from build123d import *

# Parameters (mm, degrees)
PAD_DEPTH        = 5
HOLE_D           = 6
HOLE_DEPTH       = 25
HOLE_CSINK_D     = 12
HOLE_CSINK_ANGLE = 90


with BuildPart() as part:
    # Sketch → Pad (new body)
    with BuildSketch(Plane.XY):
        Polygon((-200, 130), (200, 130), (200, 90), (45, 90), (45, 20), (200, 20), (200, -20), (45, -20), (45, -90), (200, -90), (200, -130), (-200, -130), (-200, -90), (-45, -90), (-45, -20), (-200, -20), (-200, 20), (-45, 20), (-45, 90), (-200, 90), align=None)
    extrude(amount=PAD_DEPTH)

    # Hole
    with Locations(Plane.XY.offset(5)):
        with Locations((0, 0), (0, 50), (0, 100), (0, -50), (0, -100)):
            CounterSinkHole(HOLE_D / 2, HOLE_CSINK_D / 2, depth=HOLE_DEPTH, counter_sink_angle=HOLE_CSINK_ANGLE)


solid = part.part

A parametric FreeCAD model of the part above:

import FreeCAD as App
import Part
import Sketcher

V = App.Vector
Q = App.Units.Quantity


def add_polygon(sketch, points):
    """Adds a closed chain of lines whose ends are joined by coincident constraints."""
    first, n = sketch.GeometryCount, len(points)
    for a, b in zip(points, points[1:] + points[:1]):
        sketch.addGeometry(Part.LineSegment(App.Vector(*a, 0), App.Vector(*b, 0)), False)
    for i in range(n):
        sketch.addConstraint(Sketcher.Constraint("Coincident", first + i, 2, first + (i + 1) % n, 1))

doc = App.newDocument("Part")
body = doc.addObject("PartDesign::Body", "Body")

sketch1 = body.newObject("Sketcher::SketchObject", "Sketch")
sketch1.AttachmentSupport = (doc.getObject("XY_Plane"), [""])
sketch1.MapMode = "FlatFace"
add_polygon(sketch1, [(200, 130), (-200, 130), (-200, 90), (-45, 90), (-45, 20), (-200, 20), (-200, -20), (-45, -20), (-45, -90), (-200, -90), (-200, -130), (200, -130), (200, -90), (45, -90), (45, -20), (200, -20), (200, 20), (45, 20), (45, 90), (200, 90)])
sketch1.addConstraint(Sketcher.Constraint("Horizontal", 0))
sketch1.addConstraint(Sketcher.Constraint("Vertical", 1))
sketch1.addConstraint(Sketcher.Constraint("Horizontal", 2))
sketch1.addConstraint(Sketcher.Constraint("Vertical", 3))
sketch1.addConstraint(Sketcher.Constraint("Horizontal", 4))
sketch1.addConstraint(Sketcher.Constraint("Vertical", 5))
sketch1.addConstraint(Sketcher.Constraint("Horizontal", 6))
sketch1.addConstraint(Sketcher.Constraint("Vertical", 7))
sketch1.addConstraint(Sketcher.Constraint("Horizontal", 8))
sketch1.addConstraint(Sketcher.Constraint("Vertical", 9))
sketch1.addConstraint(Sketcher.Constraint("Horizontal", 10))
sketch1.addConstraint(Sketcher.Constraint("Vertical", 11))
sketch1.addConstraint(Sketcher.Constraint("Horizontal", 12))
sketch1.addConstraint(Sketcher.Constraint("Vertical", 13))
sketch1.addConstraint(Sketcher.Constraint("Horizontal", 14))
sketch1.addConstraint(Sketcher.Constraint("Vertical", 15))
sketch1.addConstraint(Sketcher.Constraint("Horizontal", 16))
sketch1.addConstraint(Sketcher.Constraint("Vertical", 17))
sketch1.addConstraint(Sketcher.Constraint("Horizontal", 18))
sketch1.addConstraint(Sketcher.Constraint("Vertical", 19))
sketch1.addConstraint(Sketcher.Constraint("Symmetric", 0, 2, 10, 2, -1, 1))
sketch1.addConstraint(Sketcher.Constraint("Symmetric", 2, 2, 12, 2, -1, 1))
sketch1.addConstraint(Sketcher.Constraint("Symmetric", 4, 2, 14, 2, -1, 1))
sketch1.addConstraint(Sketcher.Constraint("Symmetric", 6, 2, 16, 2, -1, 1))
sketch1.addConstraint(Sketcher.Constraint("Symmetric", 8, 2, 18, 2, -1, 1))
sketch1.addConstraint(Sketcher.Constraint("Symmetric", 8, 2, 11, 2, -2))
sketch1.addConstraint(Sketcher.Constraint("Symmetric", 6, 2, 13, 2, -2))
sketch1.addConstraint(Sketcher.Constraint("Vertical", 1, 2, 4, 2))
sketch1.addConstraint(Sketcher.Constraint("Equal", 1, 5))
sketch1.addConstraint(Sketcher.Constraint("DistanceX", 0, 2, 0, 1, Q("400 mm")))
sketch1.addConstraint(Sketcher.Constraint("DistanceX", 2, 1, 2, 2, Q("155 mm")))
sketch1.addConstraint(Sketcher.Constraint("DistanceY", 1, 2, 1, 1, Q("40 mm")))
sketch1.addConstraint(Sketcher.Constraint("DistanceY", 3, 2, 3, 1, Q("70 mm")))
pad1 = body.newObject("PartDesign::Pad", "Pad")
pad1.Profile = sketch1
pad1.Length = 5

sketch2 = body.newObject("Sketcher::SketchObject", "Sketch001")
sketch2.AttachmentSupport = (doc.getObject("XY_Plane"), [""])
sketch2.MapMode = "FlatFace"
sketch2.AttachmentOffset = App.Placement(V(0, 0, 5), App.Rotation())
sketch2.addGeometry(Part.Circle(V(0, 0, 0), V(0, 0, 1), 3), False)
sketch2.addGeometry(Part.Circle(V(0, 50, 0), V(0, 0, 1), 3), False)
sketch2.addGeometry(Part.Circle(V(0, 100, 0), V(0, 0, 1), 3), False)
sketch2.addGeometry(Part.Circle(V(0, -50, 0), V(0, 0, 1), 3), False)
sketch2.addGeometry(Part.Circle(V(0, -100, 0), V(0, 0, 1), 3), False)
sketch2.addConstraint(Sketcher.Constraint("Coincident", 0, 3, -1, 1))
sketch2.addConstraint(Sketcher.Constraint("Equal", 0, 1))
sketch2.addConstraint(Sketcher.Constraint("Equal", 1, 2))
sketch2.addConstraint(Sketcher.Constraint("Equal", 2, 3))
sketch2.addConstraint(Sketcher.Constraint("Equal", 3, 4))
sketch2.addConstraint(Sketcher.Constraint("Symmetric", 1, 3, 3, 3, -1, 1))
sketch2.addConstraint(Sketcher.Constraint("Symmetric", 2, 3, 4, 3, -1, 1))
sketch2.addConstraint(Sketcher.Constraint("PointOnObject", 1, 3, -2))
sketch2.addConstraint(Sketcher.Constraint("PointOnObject", 2, 3, -2))
sketch2.addConstraint(Sketcher.Constraint("Diameter", 0, Q("6 mm")))
sketch2.addConstraint(Sketcher.Constraint("DistanceY", -1, 1, 1, 3, Q("50 mm")))
sketch2.addConstraint(Sketcher.Constraint("DistanceY", -1, 1, 2, 3, Q("100 mm")))
doc.recompute()
hole = body.newObject("PartDesign::Hole", "Hole")
hole.Profile = sketch2
hole.ThreadType = "None"
hole.Diameter = 6
hole.DepthType = "Dimension"
hole.Depth = 25
hole.DrillPoint = "Flat"
hole.HoleCutType = "Countersink"
hole.HoleCutDiameter = 12
hole.HoleCutCountersinkAngle = 90

doc.recompute()
